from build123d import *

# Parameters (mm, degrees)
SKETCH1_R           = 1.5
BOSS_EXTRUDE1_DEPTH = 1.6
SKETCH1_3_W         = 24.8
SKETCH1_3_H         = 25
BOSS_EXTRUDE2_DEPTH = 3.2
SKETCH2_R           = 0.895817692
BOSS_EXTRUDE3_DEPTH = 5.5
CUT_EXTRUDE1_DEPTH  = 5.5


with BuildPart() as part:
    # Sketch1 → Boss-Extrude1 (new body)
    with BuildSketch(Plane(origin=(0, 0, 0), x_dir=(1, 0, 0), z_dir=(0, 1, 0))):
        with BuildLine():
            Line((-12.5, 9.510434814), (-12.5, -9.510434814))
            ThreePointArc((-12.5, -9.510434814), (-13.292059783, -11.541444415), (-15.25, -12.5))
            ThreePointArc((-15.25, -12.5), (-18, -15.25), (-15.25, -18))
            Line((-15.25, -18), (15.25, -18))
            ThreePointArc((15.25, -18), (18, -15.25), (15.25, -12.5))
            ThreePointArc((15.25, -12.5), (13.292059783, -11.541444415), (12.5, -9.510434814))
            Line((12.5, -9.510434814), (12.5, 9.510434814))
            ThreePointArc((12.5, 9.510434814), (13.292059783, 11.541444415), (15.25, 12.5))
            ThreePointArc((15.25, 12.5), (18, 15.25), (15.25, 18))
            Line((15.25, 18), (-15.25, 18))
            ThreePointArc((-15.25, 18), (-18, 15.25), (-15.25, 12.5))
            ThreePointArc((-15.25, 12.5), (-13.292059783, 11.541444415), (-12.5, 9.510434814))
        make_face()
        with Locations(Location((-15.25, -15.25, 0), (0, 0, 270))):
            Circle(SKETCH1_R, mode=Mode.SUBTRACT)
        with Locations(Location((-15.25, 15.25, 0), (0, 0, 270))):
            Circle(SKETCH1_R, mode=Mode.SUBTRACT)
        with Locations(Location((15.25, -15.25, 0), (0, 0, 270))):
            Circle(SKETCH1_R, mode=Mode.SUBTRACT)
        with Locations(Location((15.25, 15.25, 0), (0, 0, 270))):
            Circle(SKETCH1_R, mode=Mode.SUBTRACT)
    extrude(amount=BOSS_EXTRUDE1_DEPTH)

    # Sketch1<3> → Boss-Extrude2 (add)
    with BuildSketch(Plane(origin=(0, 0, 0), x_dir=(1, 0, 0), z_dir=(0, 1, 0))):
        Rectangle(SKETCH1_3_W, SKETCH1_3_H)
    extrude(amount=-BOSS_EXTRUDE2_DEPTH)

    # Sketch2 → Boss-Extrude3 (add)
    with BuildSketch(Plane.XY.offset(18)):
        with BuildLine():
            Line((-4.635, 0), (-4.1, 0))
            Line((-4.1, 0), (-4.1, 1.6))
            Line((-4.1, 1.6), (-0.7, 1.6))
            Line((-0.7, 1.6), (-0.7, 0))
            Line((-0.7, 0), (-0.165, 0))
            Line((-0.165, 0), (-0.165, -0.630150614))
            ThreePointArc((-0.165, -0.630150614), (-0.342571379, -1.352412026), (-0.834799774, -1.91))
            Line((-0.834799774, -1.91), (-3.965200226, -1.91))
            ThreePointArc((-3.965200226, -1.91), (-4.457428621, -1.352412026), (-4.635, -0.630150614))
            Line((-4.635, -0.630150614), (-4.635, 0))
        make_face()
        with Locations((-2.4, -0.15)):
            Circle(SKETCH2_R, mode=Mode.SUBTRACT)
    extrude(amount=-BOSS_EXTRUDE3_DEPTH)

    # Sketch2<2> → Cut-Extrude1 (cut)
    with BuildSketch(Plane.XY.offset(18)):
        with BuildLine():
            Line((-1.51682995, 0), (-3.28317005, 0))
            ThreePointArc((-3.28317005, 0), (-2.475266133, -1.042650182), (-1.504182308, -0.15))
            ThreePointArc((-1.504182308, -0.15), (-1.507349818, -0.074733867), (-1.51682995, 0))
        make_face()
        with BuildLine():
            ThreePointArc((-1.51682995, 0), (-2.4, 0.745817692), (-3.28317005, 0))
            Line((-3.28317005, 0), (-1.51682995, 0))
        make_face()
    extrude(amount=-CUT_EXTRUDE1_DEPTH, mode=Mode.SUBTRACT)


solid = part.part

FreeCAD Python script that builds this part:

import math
import FreeCAD as App
import Part
import Sketcher

V = App.Vector
Q = App.Units.Quantity


def add_polygon(sketch, points):
    """Adds a closed chain of lines whose ends are joined by coincident constraints."""
    first, n = sketch.GeometryCount, len(points)
    for a, b in zip(points, points[1:] + points[:1]):
        sketch.addGeometry(Part.LineSegment(App.Vector(*a, 0), App.Vector(*b, 0)), False)
    for i in range(n):
        sketch.addConstraint(Sketcher.Constraint("Coincident", first + i, 2, first + (i + 1) % n, 1))

doc = App.newDocument("Part")
params = doc.addObject("Spreadsheet::Sheet", "Params")
for row, (alias, value) in enumerate([
    ("sketch1_diameter", "3 mm"),
    ("sketch1_radius", "3 mm"),
    ("sketch1_radius2", "2.75 mm"),
    ("sketch1_width", "30.5 mm"),
    ("pad1_length", "1.6 mm"),
    ("sketch2_height", "25 mm"),
    ("sketch2_width", "24.8 mm"),
    ("pad2_length", "3.2 mm"),
    ("sketch3_width", "3.4 mm"),
    ("sketch3_height", "1.6 mm"),
    ("pad3_length", "5.5 mm"),
    ("pocket1_length", "5.5 mm"),
], start=1):
    params.set(f"A{row}", alias)
    params.set(f"B{row}", "=" + value)
    params.setAlias(f"B{row}", alias)

body = doc.addObject("PartDesign::Body", "Body")

sketch1 = body.newObject("Sketcher::SketchObject", "Sketch")
sketch1.AttachmentSupport = (doc.getObject("XZ_Plane"), [""])
sketch1.MapMode = "FlatFace"
sketch1.addGeometry([
    Part.LineSegment(V(-12.5, -9.5, 0), V(-12.5, 9.5, 0)),
    Part.ArcOfCircle(Part.Circle(V(-15.5, 9.5, 0), V(0, 0, 1), 3), math.radians(0), math.radians(85)),
    Part.ArcOfCircle(Part.Circle(V(-15.2, 15.2, 0), V(0, 0, 1), 2.8), math.radians(90), math.radians(270)),
    Part.LineSegment(V(-15.2, 18, 0), V(15.2, 18, 0)),
    Part.ArcOfCircle(Part.Circle(V(15.2, 15.2, 0), V(0, 0, 1), 2.8), math.radians(-90), math.radians(90)),
    Part.ArcOfCircle(Part.Circle(V(15.5, 9.5, 0), V(0, 0, 1), 3), math.radians(95), math.radians(180)),
    Part.LineSegment(V(12.5, 9.5, 0), V(12.5, -9.5, 0)),
    Part.ArcOfCircle(Part.Circle(V(15.5, -9.5, 0), V(0, 0, 1), 3), math.radians(180), math.radians(265)),
    Part.ArcOfCircle(Part.Circle(V(15.2, -15.2, 0), V(0, 0, 1), 2.8), math.radians(-90), math.radians(90)),
    Part.LineSegment(V(15.2, -18, 0), V(-15.2, -18, 0)),
    Part.ArcOfCircle(Part.Circle(V(-15.2, -15.2, 0), V(0, 0, 1), 2.8), math.radians(90), math.radians(270)),
    Part.ArcOfCircle(Part.Circle(V(-15.5, -9.5, 0), V(0, 0, 1), 3), math.radians(-85), math.radians(0)),
    Part.Circle(V(-15.2, 15.2, 0), V(0, 0, 1), 1.5),
    Part.Circle(V(15.2, 15.2, 0), V(0, 0, 1), 1.5),
    Part.Circle(V(-15.2, -15.2, 0), V(0, 0, 1), 1.5),
    Part.Circle(V(15.2, -15.2, 0), V(0, 0, 1), 1.5),
], False)
sketch1.addConstraint([
    Sketcher.Constraint("Tangent", 0, 2, 1, 1),
    Sketcher.Constraint("Coincident", 1, 2, 2, 2),
    Sketcher.Constraint("Tangent", 2, 1, 3, 1),
    Sketcher.Constraint("Tangent", 3, 2, 4, 2),
    Sketcher.Constraint("Coincident", 4, 1, 5, 1),
    Sketcher.Constraint("Tangent", 5, 2, 6, 1),
    Sketcher.Constraint("Tangent", 6, 2, 7, 1),
    Sketcher.Constraint("Coincident", 7, 2, 8, 2),
    Sketcher.Constraint("Tangent", 8, 1, 9, 1),
    Sketcher.Constraint("Tangent", 9, 2, 10, 2),
    Sketcher.Constraint("Coincident", 10, 1, 11, 1),
    Sketcher.Constraint("Tangent", 11, 2, 0, 1),
    Sketcher.Constraint("Vertical", 0),
    Sketcher.Constraint("Horizontal", 3),
    Sketcher.Constraint("Vertical", 6),
    Sketcher.Constraint("Horizontal", 9),
    Sketcher.Constraint("Coincident", 12, 3, 2, 3),
    Sketcher.Constraint("Coincident", 13, 3, 4, 3),
    Sketcher.Constraint("Coincident", 14, 3, 10, 3),
    Sketcher.Constraint("Coincident", 15, 3, 8, 3),
    Sketcher.Constraint("Equal", 2, 4),
    Sketcher.Constraint("Equal", 1, 5),
    Sketcher.Constraint("Equal", 5, 7),
    Sketcher.Constraint("Equal", 4, 8),
    Sketcher.Constraint("Equal", 8, 10),
    Sketcher.Constraint("Equal", 7, 11),
    Sketcher.Constraint("Equal", 12, 13),
    Sketcher.Constraint("Equal", 13, 14),
    Sketcher.Constraint("Equal", 14, 15),
    Sketcher.Constraint("Symmetric", 1, 3, 7, 3, -1, 1),
    Sketcher.Constraint("Symmetric", 2, 3, 8, 3, -1, 1),
    Sketcher.Constraint("Horizontal", 1, 3, 5, 3),
    Sketcher.Constraint("Horizontal", 7, 3, 11, 3),
    Sketcher.Constraint("Vertical", 4, 3, 8, 3),
    Sketcher.Constraint("Vertical", 2, 3, 10, 3),
    Sketcher.Constraint("Vertical", 14, 3, 1, 2),
    Sketcher.Constraint("Diameter", 12, Q("3 mm")),
    Sketcher.Constraint("Radius", 1, Q("3 mm")),
    Sketcher.Constraint("Radius", 2, Q("2.75 mm")),
    Sketcher.Constraint("DistanceX", 3, 1, 3, 2, Q("30.5 mm")),
    Sketcher.Constraint("DistanceY", -1, 1, 2, 1, Q("18 mm")),
    Sketcher.Constraint("DistanceX", 1, 3, 5, 3, Q("31 mm")),
])
sketch1.setExpression("Constraints[36]", "Params.sketch1_diameter")
sketch1.setExpression("Constraints[37]", "Params.sketch1_radius")
sketch1.setExpression("Constraints[38]", "Params.sketch1_radius2")
sketch1.setExpression("Constraints[39]", "Params.sketch1_width")
pad1 = body.newObject("PartDesign::Pad", "Pad")
pad1.Profile = sketch1
pad1.setExpression("Length", "Params.pad1_length")
pad1.Reversed = True

sketch2 = body.newObject("Sketcher::SketchObject", "Sketch001")
sketch2.AttachmentSupport = (doc.getObject("XZ_Plane"), [""])
sketch2.MapMode = "FlatFace"
add_polygon(sketch2, [(-12, -12), (-12, 12), (12, 12), (12, -12)])
sketch2.addConstraint([
    Sketcher.Constraint("Vertical", 0),
    Sketcher.Constraint("Horizontal", 1),
    Sketcher.Constraint("Vertical", 2),
    Sketcher.Constraint("Horizontal", 3),
    Sketcher.Constraint("Symmetric", 0, 2, 2, 2, -1, 1),
    Sketcher.Constraint("DistanceY", 0, 1, 0, 2, Q("25 mm")),
    Sketcher.Constraint("DistanceX", 1, 1, 1, 2, Q("24.8 mm")),
])
sketch2.setExpression("Constraints[9]", "Params.sketch2_height")
sketch2.setExpression("Constraints[10]", "Params.sketch2_width")
pad2 = body.newObject("PartDesign::Pad", "Pad001")
pad2.Profile = sketch2
pad2.setExpression("Length", "Params.pad2_length")

sketch3 = body.newObject("Sketcher::SketchObject", "Sketch002")
sketch3.AttachmentSupport = (doc.getObject("XY_Plane"), [""])
sketch3.MapMode = "FlatFace"
sketch3.AttachmentOffset = App.Placement(V(0, 0, 18), App.Rotation())
sketch3.addGeometry([
    Part.LineSegment(V(-4.1, 0, 0), V(-4.6, 0, 0)),
    Part.LineSegment(V(-4.6, 0, 0), V(-4.6, -0.6, 0)),
    Part.ArcOfCircle(Part.Circle(V(-3.1, -0.6, 0), V(0, 0, 1), 1.6), math.radians(180), math.radians(235)),
    Part.LineSegment(V(-4, -1.9, 0), V(-0.8, -1.9, 0)),
    Part.ArcOfCircle(Part.Circle(V(-1.7, -0.6, 0), V(0, 0, 1), 1.6), math.radians(-55), math.radians(0)),
    Part.LineSegment(V(-0.2, -0.6, 0), V(-0.2, 0, 0)),
    Part.LineSegment(V(-0.2, 0, 0), V(-0.7, 0, 0)),
    Part.LineSegment(V(-0.7, 0, 0), V(-0.7, 1.6, 0)),
    Part.LineSegment(V(-0.7, 1.6, 0), V(-4.1, 1.6, 0)),
    Part.LineSegment(V(-4.1, 1.6, 0), V(-4.1, 0, 0)),
    Part.Circle(V(-2.4, -0.1, 0), V(0, 0, 1), 0.9),
], False)
sketch3.addConstraint([
    Sketcher.Constraint("Coincident", 0, 2, 1, 1),
    Sketcher.Constraint("Tangent", 1, 2, 2, 1),
    Sketcher.Constraint("Coincident", 2, 2, 3, 1),
    Sketcher.Constraint("Coincident", 3, 2, 4, 1),
    Sketcher.Constraint("Tangent", 4, 2, 5, 1),
    Sketcher.Constraint("Coincident", 5, 2, 6, 1),
    Sketcher.Constraint("Coincident", 6, 2, 7, 1),
    Sketcher.Constraint("Coincident", 7, 2, 8, 1),
    Sketcher.Constraint("Coincident", 8, 2, 9, 1),
    Sketcher.Constraint("Coincident", 9, 2, 0, 1),
    Sketcher.Constraint("Horizontal", 0),
    Sketcher.Constraint("Vertical", 1),
    Sketcher.Constraint("Horizontal", 3),
    Sketcher.Constraint("Vertical", 5),
    Sketcher.Constraint("Horizontal", 6),
    Sketcher.Constraint("Vertical", 7),
    Sketcher.Constraint("Horizontal", 8),
    Sketcher.Constraint("Vertical", 9),
    Sketcher.Constraint("Equal", 2, 4),
    Sketcher.Constraint("PointOnObject", 0, 2, -1),
    Sketcher.Constraint("PointOnObject", 5, 2, -1),
    Sketcher.Constraint("Horizontal", 2, 3, 4, 3),
    Sketcher.Constraint("Equal", 0, 6),
    Sketcher.Constraint("DistanceX", 8, 2, 8, 1, Q("3.4 mm")),
    Sketcher.Constraint("DistanceY", 7, 1, 7, 2, Q("1.6 mm")),
    Sketcher.Constraint("DistanceX", 10, 3, -1, 1, Q("2.4 mm")),
    Sketcher.Constraint("DistanceX", 6, 2, -1, 1, Q("0.7 mm")),
    Sketcher.Constraint("DistanceX", 0, 2, 0, 1, Q("0.535 mm")),
    Sketcher.Constraint("DistanceY", 10, 3, -1, 1, Q("0.15 mm")),
    Sketcher.Constraint("DistanceY", 2, 2, -1, 1, Q("1.91 mm")),
    Sketcher.Constraint("Diameter", 10, Q("1.791635 mm")),
    Sketcher.Constraint("DistanceX", 3, 1, 3, 2, Q("3.1304 mm")),
    Sketcher.Constraint("Radius", 2, Q("1.557664 mm")),
])
sketch3.setExpression("Constraints[23]", "Params.sketch3_width")
sketch3.setExpression("Constraints[24]", "Params.sketch3_height")
pad3 = body.newObject("PartDesign::Pad", "Pad002")
pad3.Profile = sketch3
pad3.setExpression("Length", "Params.pad3_length")
pad3.Reversed = True

sketch4 = body.newObject("Sketcher::SketchObject", "Sketch003")
sketch4.AttachmentSupport = (doc.getObject("XY_Plane"), [""])
sketch4.MapMode = "FlatFace"
sketch4.AttachmentOffset = App.Placement(V(0, 0, 18), App.Rotation())
sketch4.addGeometry([
    Part.ArcOfCircle(Part.Circle(V(-2.4, -0.15, 0), V(0, 0, 1), 0.9), math.radians(170), math.radians(360)),
    Part.ArcOfCircle(Part.Circle(V(-2.4, -0.15, 0), V(0, 0, 1), 0.9), math.radians(0), math.radians(9.64)),
    Part.ArcOfCircle(Part.Circle(V(-2.4, -0.15, 0), V(0, 0, 1), 0.9), math.radians(10), math.radians(170)),
], False)
sketch4.addConstraint([
    Sketcher.Constraint("Tangent", 0, 2, 1, 1),
    Sketcher.Constraint("Tangent", 1, 2, 2, 1),
    Sketcher.Constraint("Tangent", 2, 2, 0, 1),
    Sketcher.Constraint("PointOnObject", 1, 2, -1),
    Sketcher.Constraint("PointOnObject", 2, 2, -1),
    Sketcher.Constraint("Horizontal", 2, 3, 0, 2),
    Sketcher.Constraint("DistanceX", 0, 3, -1, 1, Q("2.4 mm")),
    Sketcher.Constraint("DistanceY", 0, 3, -1, 1, Q("0.15 mm")),
    Sketcher.Constraint("Radius", 0, Q("0.895818 mm")),
])
pocket1 = body.newObject("PartDesign::Pocket", "Pocket")
pocket1.Profile = sketch4
pocket1.setExpression("Length", "Params.pocket1_length")

doc.recompute()
